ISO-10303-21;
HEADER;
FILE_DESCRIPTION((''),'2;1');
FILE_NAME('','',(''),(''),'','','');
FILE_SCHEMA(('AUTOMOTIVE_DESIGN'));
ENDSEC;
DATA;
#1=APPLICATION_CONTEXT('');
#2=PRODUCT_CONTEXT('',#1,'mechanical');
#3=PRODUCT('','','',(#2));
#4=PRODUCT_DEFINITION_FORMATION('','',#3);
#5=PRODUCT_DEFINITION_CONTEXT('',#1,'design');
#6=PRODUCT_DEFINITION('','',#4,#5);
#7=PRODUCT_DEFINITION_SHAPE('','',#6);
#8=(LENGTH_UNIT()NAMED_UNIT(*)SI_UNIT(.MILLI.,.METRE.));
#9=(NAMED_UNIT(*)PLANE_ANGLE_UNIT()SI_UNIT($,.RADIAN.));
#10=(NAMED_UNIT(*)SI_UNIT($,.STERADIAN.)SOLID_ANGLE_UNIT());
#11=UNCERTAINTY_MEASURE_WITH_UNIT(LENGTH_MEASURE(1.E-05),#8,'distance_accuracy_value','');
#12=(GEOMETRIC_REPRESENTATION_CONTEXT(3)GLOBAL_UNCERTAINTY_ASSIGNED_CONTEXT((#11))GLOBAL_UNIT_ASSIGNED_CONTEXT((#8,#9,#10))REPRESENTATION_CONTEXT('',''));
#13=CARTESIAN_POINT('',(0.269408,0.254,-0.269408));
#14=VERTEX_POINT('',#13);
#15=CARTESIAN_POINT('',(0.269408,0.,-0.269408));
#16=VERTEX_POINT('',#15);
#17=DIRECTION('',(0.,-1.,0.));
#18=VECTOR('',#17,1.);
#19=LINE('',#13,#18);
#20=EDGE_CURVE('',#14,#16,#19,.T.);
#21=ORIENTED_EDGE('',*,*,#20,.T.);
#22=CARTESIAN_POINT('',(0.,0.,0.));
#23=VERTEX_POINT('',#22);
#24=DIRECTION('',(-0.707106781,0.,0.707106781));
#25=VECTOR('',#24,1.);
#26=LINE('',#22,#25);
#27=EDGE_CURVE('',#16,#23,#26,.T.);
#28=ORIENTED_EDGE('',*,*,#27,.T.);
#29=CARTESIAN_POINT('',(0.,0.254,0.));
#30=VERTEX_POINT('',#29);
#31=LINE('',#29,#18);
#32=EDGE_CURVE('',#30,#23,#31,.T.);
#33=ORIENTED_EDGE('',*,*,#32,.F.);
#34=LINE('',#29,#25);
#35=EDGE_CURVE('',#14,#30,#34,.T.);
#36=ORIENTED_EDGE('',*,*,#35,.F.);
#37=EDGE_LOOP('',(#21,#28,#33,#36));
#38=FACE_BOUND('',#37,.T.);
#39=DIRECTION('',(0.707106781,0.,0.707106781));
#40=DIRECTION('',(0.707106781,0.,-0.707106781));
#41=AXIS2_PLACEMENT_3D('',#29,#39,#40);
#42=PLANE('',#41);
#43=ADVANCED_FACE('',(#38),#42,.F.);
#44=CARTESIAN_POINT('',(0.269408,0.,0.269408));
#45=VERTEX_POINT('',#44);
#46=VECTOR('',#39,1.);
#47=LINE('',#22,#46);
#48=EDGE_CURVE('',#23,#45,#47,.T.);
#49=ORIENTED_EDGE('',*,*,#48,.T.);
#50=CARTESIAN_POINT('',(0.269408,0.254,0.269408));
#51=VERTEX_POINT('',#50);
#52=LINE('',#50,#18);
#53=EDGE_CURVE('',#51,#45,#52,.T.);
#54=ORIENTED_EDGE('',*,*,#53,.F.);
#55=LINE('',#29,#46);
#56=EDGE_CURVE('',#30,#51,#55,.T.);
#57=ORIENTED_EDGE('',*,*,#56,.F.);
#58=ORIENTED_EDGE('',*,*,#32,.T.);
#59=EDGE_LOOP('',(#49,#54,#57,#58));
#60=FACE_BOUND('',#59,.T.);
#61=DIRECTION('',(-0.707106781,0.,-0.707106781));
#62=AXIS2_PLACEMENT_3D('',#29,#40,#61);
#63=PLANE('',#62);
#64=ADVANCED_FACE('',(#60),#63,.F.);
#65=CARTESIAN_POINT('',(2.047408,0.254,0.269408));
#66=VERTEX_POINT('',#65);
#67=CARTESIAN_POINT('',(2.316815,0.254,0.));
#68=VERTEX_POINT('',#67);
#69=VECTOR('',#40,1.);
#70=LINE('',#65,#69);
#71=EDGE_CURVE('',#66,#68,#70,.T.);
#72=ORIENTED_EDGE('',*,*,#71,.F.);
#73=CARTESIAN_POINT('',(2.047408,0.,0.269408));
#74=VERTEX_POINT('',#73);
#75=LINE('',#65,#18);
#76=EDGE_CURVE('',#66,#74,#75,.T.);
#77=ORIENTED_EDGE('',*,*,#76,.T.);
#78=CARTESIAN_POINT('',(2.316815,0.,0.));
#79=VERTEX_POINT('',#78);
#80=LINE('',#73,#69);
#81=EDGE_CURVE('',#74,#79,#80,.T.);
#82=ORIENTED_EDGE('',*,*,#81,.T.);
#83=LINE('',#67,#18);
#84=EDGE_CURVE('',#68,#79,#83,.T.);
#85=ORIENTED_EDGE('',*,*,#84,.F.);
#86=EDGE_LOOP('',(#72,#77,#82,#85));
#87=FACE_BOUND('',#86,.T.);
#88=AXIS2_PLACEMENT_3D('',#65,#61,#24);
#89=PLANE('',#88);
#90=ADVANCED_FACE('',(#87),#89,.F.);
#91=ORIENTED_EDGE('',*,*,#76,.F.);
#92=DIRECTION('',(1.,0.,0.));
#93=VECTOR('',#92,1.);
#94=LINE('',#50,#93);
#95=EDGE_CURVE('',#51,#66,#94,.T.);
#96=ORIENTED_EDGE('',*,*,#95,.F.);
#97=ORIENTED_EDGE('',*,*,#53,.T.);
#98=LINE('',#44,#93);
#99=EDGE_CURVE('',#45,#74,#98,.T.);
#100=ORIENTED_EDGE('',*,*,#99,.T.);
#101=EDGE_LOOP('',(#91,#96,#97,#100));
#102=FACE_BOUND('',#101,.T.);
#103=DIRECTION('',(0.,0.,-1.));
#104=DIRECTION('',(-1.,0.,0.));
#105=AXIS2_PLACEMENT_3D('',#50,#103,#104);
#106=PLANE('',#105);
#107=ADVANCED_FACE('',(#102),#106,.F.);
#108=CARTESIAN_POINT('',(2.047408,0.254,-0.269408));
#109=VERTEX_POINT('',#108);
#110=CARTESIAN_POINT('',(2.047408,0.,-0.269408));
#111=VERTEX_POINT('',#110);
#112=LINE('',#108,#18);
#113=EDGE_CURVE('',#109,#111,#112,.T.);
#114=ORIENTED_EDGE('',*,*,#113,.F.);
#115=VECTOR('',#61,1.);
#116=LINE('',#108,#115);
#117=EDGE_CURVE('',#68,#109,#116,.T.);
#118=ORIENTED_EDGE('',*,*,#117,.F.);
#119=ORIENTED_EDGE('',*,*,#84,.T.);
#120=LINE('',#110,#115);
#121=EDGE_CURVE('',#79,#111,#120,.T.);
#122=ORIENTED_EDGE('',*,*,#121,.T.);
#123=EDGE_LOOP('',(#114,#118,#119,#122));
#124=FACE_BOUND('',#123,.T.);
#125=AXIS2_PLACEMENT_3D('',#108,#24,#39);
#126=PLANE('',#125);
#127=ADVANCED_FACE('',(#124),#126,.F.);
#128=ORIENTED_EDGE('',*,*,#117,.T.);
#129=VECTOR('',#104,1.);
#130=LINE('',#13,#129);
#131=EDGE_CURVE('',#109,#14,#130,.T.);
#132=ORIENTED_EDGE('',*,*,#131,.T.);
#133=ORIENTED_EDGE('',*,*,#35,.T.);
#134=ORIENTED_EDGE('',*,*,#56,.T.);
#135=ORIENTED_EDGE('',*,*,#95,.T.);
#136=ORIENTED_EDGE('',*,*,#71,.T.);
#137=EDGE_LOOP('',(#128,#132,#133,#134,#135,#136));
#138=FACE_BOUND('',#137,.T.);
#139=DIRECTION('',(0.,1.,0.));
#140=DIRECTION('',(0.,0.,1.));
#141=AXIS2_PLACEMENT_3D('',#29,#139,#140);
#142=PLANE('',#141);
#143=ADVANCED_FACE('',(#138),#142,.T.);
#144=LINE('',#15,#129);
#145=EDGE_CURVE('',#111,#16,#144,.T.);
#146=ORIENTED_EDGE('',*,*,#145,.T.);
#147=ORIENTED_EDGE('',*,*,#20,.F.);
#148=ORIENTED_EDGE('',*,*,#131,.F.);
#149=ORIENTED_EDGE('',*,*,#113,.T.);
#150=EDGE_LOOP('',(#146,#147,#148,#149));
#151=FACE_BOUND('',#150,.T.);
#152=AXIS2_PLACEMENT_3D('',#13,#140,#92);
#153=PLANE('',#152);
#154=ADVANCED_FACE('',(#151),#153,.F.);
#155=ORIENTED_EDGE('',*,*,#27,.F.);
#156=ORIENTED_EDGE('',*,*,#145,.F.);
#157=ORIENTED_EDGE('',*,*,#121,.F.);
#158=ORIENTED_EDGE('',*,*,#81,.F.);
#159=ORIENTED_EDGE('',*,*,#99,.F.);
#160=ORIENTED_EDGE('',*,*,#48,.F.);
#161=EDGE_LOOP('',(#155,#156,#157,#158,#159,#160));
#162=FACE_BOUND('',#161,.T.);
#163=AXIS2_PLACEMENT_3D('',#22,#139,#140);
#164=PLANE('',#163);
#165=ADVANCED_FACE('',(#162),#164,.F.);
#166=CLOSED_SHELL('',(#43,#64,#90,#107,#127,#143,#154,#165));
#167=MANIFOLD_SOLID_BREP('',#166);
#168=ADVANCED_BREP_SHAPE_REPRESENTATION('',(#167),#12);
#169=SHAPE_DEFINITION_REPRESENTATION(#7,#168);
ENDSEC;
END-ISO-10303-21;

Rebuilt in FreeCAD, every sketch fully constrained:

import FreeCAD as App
import Part
import Sketcher
Q = App.Units.Quantity


def add_polygon(sketch, points):
    """Adds a closed chain of lines whose ends are joined by coincident constraints."""
    first, n = sketch.GeometryCount, len(points)
    for a, b in zip(points, points[1:] + points[:1]):
        sketch.addGeometry(Part.LineSegment(App.Vector(*a, 0), App.Vector(*b, 0)), False)
    for i in range(n):
        sketch.addConstraint(Sketcher.Constraint("Coincident", first + i, 2, first + (i + 1) % n, 1))

doc = App.newDocument("Part")
body = doc.addObject("PartDesign::Body", "Body")

# Sketch on XZ plane
sketch1 = doc.addObject("Sketcher::SketchObject", "Sketch")
body.addObject(sketch1)
sketch1.AttachmentSupport = (doc.XZ_Plane, [""])
sketch1.MapMode = "FlatFace"
add_polygon(sketch1, [(0.27, -0.27), (0, 0), (0.27, 0.27), (2.05, 0.27), (2.32, 0), (2.05, -0.27)])  # lines 0-5
sketch1.addConstraint(Sketcher.Constraint("Horizontal", 2))
sketch1.addConstraint(Sketcher.Constraint("Horizontal", 5))
sketch1.addConstraint(Sketcher.Constraint("Coincident", 0, 2, -1, 1))
sketch1.addConstraint(Sketcher.Constraint("Symmetric", 2, 2, 4, 2, -1))
sketch1.addConstraint(Sketcher.Constraint("PointOnObject", 3, 2, -1))
sketch1.addConstraint(Sketcher.Constraint("Perpendicular", 0, 1))
sketch1.addConstraint(Sketcher.Constraint("Perpendicular", 1, 3))
sketch1.addConstraint(Sketcher.Constraint("Perpendicular", 3, 4))
sketch1.addConstraint(Sketcher.Constraint("DistanceX", 2, 1, 2, 2, Q("0.07 in")))
sketch1.addConstraint(Sketcher.Constraint("Distance", 0, Q("0.015 in")))
pad1 = doc.addObject("PartDesign::Pad", "Pad")
body.addObject(pad1)
pad1.Profile = sketch1
pad1.Length = Q("0.01 in")
pad1.Reversed = True

doc.recompute()
